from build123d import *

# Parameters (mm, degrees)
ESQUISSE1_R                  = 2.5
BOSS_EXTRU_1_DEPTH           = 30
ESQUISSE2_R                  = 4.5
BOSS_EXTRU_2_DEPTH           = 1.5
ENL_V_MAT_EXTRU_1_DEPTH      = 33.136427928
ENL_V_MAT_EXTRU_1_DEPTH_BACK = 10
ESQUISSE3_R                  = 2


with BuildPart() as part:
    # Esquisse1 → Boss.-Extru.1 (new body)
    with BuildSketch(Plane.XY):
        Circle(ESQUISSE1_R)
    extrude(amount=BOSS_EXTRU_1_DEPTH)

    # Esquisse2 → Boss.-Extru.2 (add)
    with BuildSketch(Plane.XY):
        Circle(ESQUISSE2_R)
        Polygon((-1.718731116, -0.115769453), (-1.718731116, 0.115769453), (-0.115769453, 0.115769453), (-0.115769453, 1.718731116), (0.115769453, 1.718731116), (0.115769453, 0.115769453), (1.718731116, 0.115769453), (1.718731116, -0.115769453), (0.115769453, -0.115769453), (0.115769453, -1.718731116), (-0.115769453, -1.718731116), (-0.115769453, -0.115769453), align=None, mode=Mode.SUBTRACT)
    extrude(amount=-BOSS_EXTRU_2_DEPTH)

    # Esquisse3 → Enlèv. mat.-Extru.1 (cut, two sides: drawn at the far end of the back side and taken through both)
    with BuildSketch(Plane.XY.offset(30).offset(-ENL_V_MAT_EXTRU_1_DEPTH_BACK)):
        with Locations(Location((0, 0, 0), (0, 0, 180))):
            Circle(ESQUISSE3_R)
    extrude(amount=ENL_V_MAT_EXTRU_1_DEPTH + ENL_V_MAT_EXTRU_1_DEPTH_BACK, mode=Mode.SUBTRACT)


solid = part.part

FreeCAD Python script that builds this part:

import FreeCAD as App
import Part
import Sketcher

V = App.Vector
Q = App.Units.Quantity


def add_polygon(sketch, points):
    """Adds a closed chain of lines whose ends are joined by coincident constraints."""
    first, n = sketch.GeometryCount, len(points)
    for a, b in zip(points, points[1:] + points[:1]):
        sketch.addGeometry(Part.LineSegment(App.Vector(*a, 0), App.Vector(*b, 0)), False)
    for i in range(n):
        sketch.addConstraint(Sketcher.Constraint("Coincident", first + i, 2, first + (i + 1) % n, 1))

doc = App.newDocument("Part")
body = doc.addObject("PartDesign::Body", "Body")

# Sketch on XY plane
sketch1 = body.newObject("Sketcher::SketchObject", "Sketch")
sketch1.AttachmentSupport = (doc.getObject("XY_Plane"), [""])
sketch1.MapMode = "FlatFace"
sketch1.addGeometry(Part.Circle(V(0, 0, 0), V(0, 0, 1), 2.5), False)
sketch1.addConstraint(Sketcher.Constraint("Coincident", 0, 3, -1, 1))
sketch1.addConstraint(Sketcher.Constraint("Diameter", 0, Q("5 mm")))
pad1 = body.newObject("PartDesign::Pad", "Pad")
pad1.Profile = sketch1
pad1.Length = 30

# Sketch on XY plane
sketch2 = body.newObject("Sketcher::SketchObject", "Sketch001")
sketch2.AttachmentSupport = (doc.getObject("XY_Plane"), [""])
sketch2.MapMode = "FlatFace"
sketch2.addGeometry(Part.Circle(V(0, 0, 0), V(0, 0, 1), 4.5), False)  # 0
add_polygon(sketch2, [(-0.12, -0.12), (-1.72, -0.12), (-1.72, 0.12), (-0.12, 0.12), (-0.12, 1.72), (0.12, 1.72), (0.12, 0.12), (1.72, 0.12), (1.72, -0.12), (0.12, -0.12), (0.12, -1.72), (-0.12, -1.72)])  # lines 1-12
sketch2.addConstraint(Sketcher.Constraint("Horizontal", 1))
sketch2.addConstraint(Sketcher.Constraint("Vertical", 2))
sketch2.addConstraint(Sketcher.Constraint("Horizontal", 3))
sketch2.addConstraint(Sketcher.Constraint("Vertical", 4))
sketch2.addConstraint(Sketcher.Constraint("Horizontal", 5))
sketch2.addConstraint(Sketcher.Constraint("Vertical", 6))
sketch2.addConstraint(Sketcher.Constraint("Horizontal", 7))
sketch2.addConstraint(Sketcher.Constraint("Vertical", 8))
sketch2.addConstraint(Sketcher.Constraint("Horizontal", 9))
sketch2.addConstraint(Sketcher.Constraint("Vertical", 10))
sketch2.addConstraint(Sketcher.Constraint("Horizontal", 11))
sketch2.addConstraint(Sketcher.Constraint("Vertical", 12))
sketch2.addConstraint(Sketcher.Constraint("Coincident", 0, 3, -1, 1))
sketch2.addConstraint(Sketcher.Constraint("Symmetric", 1, 2, 7, 2, -1, 1))
sketch2.addConstraint(Sketcher.Constraint("Symmetric", 3, 2, 9, 2, -1, 1))
sketch2.addConstraint(Sketcher.Constraint("Symmetric", 5, 2, 11, 2, -1, 1))
sketch2.addConstraint(Sketcher.Constraint("Symmetric", 3, 2, 6, 2, -2))
sketch2.addConstraint(Sketcher.Constraint("Equal", 11, 2))
sketch2.addConstraint(Sketcher.Constraint("Equal", 9, 4))
sketch2.addConstraint(Sketcher.Constraint("Diameter", 0, Q("9 mm")))
sketch2.addConstraint(Sketcher.Constraint("DistanceX", 1, 2, 1, 1, Q("1.602962 mm")))
sketch2.addConstraint(Sketcher.Constraint("DistanceX", 5, 1, 5, 2, Q("0.231539 mm")))
pad2 = body.newObject("PartDesign::Pad", "Pad001")
pad2.Profile = sketch2
pad2.Length = 1.5
pad2.Reversed = True

# Sketch on XY plane
sketch3 = body.newObject("Sketcher::SketchObject", "Sketch002")
sketch3.AttachmentSupport = (doc.getObject("XY_Plane"), [""])
sketch3.MapMode = "FlatFace"
sketch3.AttachmentOffset = App.Placement(V(0, 0, 30), App.Rotation())
sketch3.addGeometry(Part.Circle(V(0, 0, 0), V(0, 0, 1), 2), False)
sketch3.addConstraint(Sketcher.Constraint("Coincident", 0, 3, -1, 1))
sketch3.addConstraint(Sketcher.Constraint("Diameter", 0, Q("4 mm")))
pocket1 = body.newObject("PartDesign::Pocket", "Pocket")
pocket1.Profile = sketch3
pocket1.Type = "TwoLengths"
pocket1.Length = 33.136428
pocket1.Length2 = 10
pocket1.Reversed = True

doc.recompute()
